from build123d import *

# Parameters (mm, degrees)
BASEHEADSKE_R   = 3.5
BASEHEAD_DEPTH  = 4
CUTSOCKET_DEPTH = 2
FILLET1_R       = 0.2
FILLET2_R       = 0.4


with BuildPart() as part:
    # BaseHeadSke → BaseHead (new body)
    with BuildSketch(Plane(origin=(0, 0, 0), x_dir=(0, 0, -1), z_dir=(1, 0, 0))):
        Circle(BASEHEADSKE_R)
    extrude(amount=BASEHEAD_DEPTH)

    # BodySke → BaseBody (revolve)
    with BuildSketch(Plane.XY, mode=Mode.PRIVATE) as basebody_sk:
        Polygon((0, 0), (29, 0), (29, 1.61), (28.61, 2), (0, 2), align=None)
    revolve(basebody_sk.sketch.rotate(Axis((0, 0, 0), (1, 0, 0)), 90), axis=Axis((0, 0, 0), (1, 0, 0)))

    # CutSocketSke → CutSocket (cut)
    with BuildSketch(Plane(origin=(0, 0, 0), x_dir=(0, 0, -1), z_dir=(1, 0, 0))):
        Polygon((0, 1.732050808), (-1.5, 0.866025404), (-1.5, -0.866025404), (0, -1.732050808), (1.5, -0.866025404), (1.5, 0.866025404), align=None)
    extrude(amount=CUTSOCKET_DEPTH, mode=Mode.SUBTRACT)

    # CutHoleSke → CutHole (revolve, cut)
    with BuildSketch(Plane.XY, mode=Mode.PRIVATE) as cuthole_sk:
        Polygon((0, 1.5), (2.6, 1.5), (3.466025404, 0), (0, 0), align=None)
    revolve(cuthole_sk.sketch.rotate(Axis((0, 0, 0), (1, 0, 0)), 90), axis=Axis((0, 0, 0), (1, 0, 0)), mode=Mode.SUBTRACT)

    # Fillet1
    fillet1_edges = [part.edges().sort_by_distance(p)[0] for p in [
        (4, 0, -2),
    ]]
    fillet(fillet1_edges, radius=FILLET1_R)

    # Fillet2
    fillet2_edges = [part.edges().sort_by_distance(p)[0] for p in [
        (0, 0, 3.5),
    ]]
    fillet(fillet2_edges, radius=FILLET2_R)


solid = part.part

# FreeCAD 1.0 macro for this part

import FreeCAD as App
import Part
import Sketcher
Q = App.Units.Quantity


def edges_at(feature, points):
    """Names of the edges that pass closest to the given points."""
    edges = feature.Shape.Edges
    near = lambda p: min(range(len(edges)), key=lambda i: edges[i].distToShape(Part.Vertex(*p))[0])
    return sorted({f"Edge{near(p) + 1}" for p in points})

doc = App.newDocument("Part")
body = doc.addObject("PartDesign::Body", "Body")

sketch1 = body.newObject("Sketcher::SketchObject", "Sketch")
sketch1.AttachmentSupport = (doc.getObject("YZ_Plane"), [""])
sketch1.MapMode = "FlatFace"
sketch1.addGeometry(Part.Circle(App.Vector(0, 0, 0), App.Vector(0, 0, 1), 3.5), False)
sketch1.addConstraint([
    Sketcher.Constraint("Coincident", 0, 3, -1, 1),
    Sketcher.Constraint("Diameter", 0, 7.0),
])
pad1 = body.newObject("PartDesign::Pad", "Pad")
pad1.Profile = sketch1
pad1.Length = 4

sketch2 = body.newObject("Sketcher::SketchObject", "Sketch001")
sketch2.AttachmentSupport = (doc.getObject("XY_Plane"), [""])
sketch2.MapMode = "FlatFace"
sketch2.addGeometry([
    Part.LineSegment(App.Vector(0, 0, 0), App.Vector(29, 0, 0)),
    Part.LineSegment(App.Vector(29, 0, 0), App.Vector(29, 1.6, 0)),
    Part.LineSegment(App.Vector(29, 1.6, 0), App.Vector(28.6, 2, 0)),
    Part.LineSegment(App.Vector(28.6, 2, 0), App.Vector(0, 2, 0)),
    Part.LineSegment(App.Vector(0, 2, 0), App.Vector(0, 0, 0)),
], False)
sketch2.addConstraint([
    Sketcher.Constraint("Coincident", 0, 2, 1, 1),
    Sketcher.Constraint("Coincident", 1, 2, 2, 1),
    Sketcher.Constraint("Coincident", 2, 2, 3, 1),
    Sketcher.Constraint("Coincident", 3, 2, 4, 1),
    Sketcher.Constraint("Coincident", 4, 2, 0, 1),
    Sketcher.Constraint("Horizontal", 0),
    Sketcher.Constraint("Vertical", 1),
    Sketcher.Constraint("Horizontal", 3),
    Sketcher.Constraint("Vertical", 4),
    Sketcher.Constraint("Coincident", 4, 2, -1, 1),
    Sketcher.Constraint("DistanceX", 0, 1, 0, 2, 29.0),
    Sketcher.Constraint("DistanceY", 4, 2, 4, 1, 2.0),
    Sketcher.Constraint("Angle", 2, Q("135 deg")),
    Sketcher.Constraint("DistanceX", 3, 2, 3, 1, 28.61),
])
revolution = body.newObject("PartDesign::Revolution", "Revolution")
revolution.Profile = sketch2
revolution.ReferenceAxis = (sketch2, ["H_Axis"])
revolution.Angle = 360

sketch3 = body.newObject("Sketcher::SketchObject", "Sketch002")
sketch3.AttachmentSupport = (doc.getObject("YZ_Plane"), [""])
sketch3.MapMode = "FlatFace"
sketch3.addGeometry([
    Part.LineSegment(App.Vector(1.7, 0, 0), App.Vector(0.9, 1.5, 0)),
    Part.LineSegment(App.Vector(0.9, 1.5, 0), App.Vector(-0.9, 1.5, 0)),
    Part.LineSegment(App.Vector(-0.9, 1.5, 0), App.Vector(-1.7, 0, 0)),
    Part.LineSegment(App.Vector(-1.7, 0, 0), App.Vector(-0.9, -1.5, 0)),
    Part.LineSegment(App.Vector(-0.9, -1.5, 0), App.Vector(0.9, -1.5, 0)),
    Part.LineSegment(App.Vector(0.9, -1.5, 0), App.Vector(1.7, 0, 0)),
], False)
sketch3.addConstraint([
    Sketcher.Constraint("Coincident", 0, 2, 1, 1),
    Sketcher.Constraint("Coincident", 1, 2, 2, 1),
    Sketcher.Constraint("Coincident", 2, 2, 3, 1),
    Sketcher.Constraint("Coincident", 3, 2, 4, 1),
    Sketcher.Constraint("Coincident", 4, 2, 5, 1),
    Sketcher.Constraint("Coincident", 5, 2, 0, 1),
    Sketcher.Constraint("Horizontal", 1),
    Sketcher.Constraint("Horizontal", 4),
    Sketcher.Constraint("Symmetric", 0, 2, 3, 2, -1, 1),
    Sketcher.Constraint("Symmetric", 2, 2, 5, 2, -1, 1),
    Sketcher.Constraint("PointOnObject", 2, 2, -1),
    Sketcher.Constraint("Parallel", 2, 5),
    Sketcher.Constraint("Vertical", 1, 2, 3, 2),
    Sketcher.Constraint("Angle", 0, Q("120 deg")),
    Sketcher.Constraint("DistanceY", 3, 2, 1, 2, 3.0),
    Sketcher.Constraint("DistanceX", 1, 2, 1, 1, 1.732051),
])
pocket1 = body.newObject("PartDesign::Pocket", "Pocket")
pocket1.Profile = sketch3
pocket1.Length = 2
pocket1.Reversed = True

sketch4 = body.newObject("Sketcher::SketchObject", "Sketch003")
sketch4.AttachmentSupport = (doc.getObject("XY_Plane"), [""])
sketch4.MapMode = "FlatFace"
sketch4.addGeometry([
    Part.LineSegment(App.Vector(2.6, 1.5, 0), App.Vector(0, 1.5, 0)),
    Part.LineSegment(App.Vector(0, 1.5, 0), App.Vector(0, 0, 0)),
    Part.LineSegment(App.Vector(0, 0, 0), App.Vector(3.5, 0, 0)),
    Part.LineSegment(App.Vector(3.5, 0, 0), App.Vector(2.6, 1.5, 0)),
], False)
sketch4.addConstraint([
    Sketcher.Constraint("Coincident", 0, 2, 1, 1),
    Sketcher.Constraint("Coincident", 1, 2, 2, 1),
    Sketcher.Constraint("Coincident", 2, 2, 3, 1),
    Sketcher.Constraint("Coincident", 3, 2, 0, 1),
    Sketcher.Constraint("Horizontal", 0),
    Sketcher.Constraint("Vertical", 1),
    Sketcher.Constraint("Horizontal", 2),
    Sketcher.Constraint("Coincident", 1, 2, -1, 1),
    Sketcher.Constraint("Angle", 3, Q("120 deg")),
    Sketcher.Constraint("DistanceX", 0, 2, 0, 1, 2.6),
    Sketcher.Constraint("DistanceY", 1, 2, 1, 1, 1.5),
])
groove = body.newObject("PartDesign::Groove", "Groove")
groove.Profile = sketch4
groove.ReferenceAxis = (sketch4, ["H_Axis"])
groove.Angle = 360
doc.recompute()

fillet = body.newObject("PartDesign::Fillet", "Fillet")
fillet.Base = (groove, edges_at(groove, [(4, 0, -2)]))
fillet.Radius = 0.2
doc.recompute()

fillet2 = body.newObject("PartDesign::Fillet", "Fillet001")
fillet2.Base = (fillet, edges_at(fillet, [(0, 0, 3.5)]))
fillet2.Radius = 0.4

doc.recompute()
